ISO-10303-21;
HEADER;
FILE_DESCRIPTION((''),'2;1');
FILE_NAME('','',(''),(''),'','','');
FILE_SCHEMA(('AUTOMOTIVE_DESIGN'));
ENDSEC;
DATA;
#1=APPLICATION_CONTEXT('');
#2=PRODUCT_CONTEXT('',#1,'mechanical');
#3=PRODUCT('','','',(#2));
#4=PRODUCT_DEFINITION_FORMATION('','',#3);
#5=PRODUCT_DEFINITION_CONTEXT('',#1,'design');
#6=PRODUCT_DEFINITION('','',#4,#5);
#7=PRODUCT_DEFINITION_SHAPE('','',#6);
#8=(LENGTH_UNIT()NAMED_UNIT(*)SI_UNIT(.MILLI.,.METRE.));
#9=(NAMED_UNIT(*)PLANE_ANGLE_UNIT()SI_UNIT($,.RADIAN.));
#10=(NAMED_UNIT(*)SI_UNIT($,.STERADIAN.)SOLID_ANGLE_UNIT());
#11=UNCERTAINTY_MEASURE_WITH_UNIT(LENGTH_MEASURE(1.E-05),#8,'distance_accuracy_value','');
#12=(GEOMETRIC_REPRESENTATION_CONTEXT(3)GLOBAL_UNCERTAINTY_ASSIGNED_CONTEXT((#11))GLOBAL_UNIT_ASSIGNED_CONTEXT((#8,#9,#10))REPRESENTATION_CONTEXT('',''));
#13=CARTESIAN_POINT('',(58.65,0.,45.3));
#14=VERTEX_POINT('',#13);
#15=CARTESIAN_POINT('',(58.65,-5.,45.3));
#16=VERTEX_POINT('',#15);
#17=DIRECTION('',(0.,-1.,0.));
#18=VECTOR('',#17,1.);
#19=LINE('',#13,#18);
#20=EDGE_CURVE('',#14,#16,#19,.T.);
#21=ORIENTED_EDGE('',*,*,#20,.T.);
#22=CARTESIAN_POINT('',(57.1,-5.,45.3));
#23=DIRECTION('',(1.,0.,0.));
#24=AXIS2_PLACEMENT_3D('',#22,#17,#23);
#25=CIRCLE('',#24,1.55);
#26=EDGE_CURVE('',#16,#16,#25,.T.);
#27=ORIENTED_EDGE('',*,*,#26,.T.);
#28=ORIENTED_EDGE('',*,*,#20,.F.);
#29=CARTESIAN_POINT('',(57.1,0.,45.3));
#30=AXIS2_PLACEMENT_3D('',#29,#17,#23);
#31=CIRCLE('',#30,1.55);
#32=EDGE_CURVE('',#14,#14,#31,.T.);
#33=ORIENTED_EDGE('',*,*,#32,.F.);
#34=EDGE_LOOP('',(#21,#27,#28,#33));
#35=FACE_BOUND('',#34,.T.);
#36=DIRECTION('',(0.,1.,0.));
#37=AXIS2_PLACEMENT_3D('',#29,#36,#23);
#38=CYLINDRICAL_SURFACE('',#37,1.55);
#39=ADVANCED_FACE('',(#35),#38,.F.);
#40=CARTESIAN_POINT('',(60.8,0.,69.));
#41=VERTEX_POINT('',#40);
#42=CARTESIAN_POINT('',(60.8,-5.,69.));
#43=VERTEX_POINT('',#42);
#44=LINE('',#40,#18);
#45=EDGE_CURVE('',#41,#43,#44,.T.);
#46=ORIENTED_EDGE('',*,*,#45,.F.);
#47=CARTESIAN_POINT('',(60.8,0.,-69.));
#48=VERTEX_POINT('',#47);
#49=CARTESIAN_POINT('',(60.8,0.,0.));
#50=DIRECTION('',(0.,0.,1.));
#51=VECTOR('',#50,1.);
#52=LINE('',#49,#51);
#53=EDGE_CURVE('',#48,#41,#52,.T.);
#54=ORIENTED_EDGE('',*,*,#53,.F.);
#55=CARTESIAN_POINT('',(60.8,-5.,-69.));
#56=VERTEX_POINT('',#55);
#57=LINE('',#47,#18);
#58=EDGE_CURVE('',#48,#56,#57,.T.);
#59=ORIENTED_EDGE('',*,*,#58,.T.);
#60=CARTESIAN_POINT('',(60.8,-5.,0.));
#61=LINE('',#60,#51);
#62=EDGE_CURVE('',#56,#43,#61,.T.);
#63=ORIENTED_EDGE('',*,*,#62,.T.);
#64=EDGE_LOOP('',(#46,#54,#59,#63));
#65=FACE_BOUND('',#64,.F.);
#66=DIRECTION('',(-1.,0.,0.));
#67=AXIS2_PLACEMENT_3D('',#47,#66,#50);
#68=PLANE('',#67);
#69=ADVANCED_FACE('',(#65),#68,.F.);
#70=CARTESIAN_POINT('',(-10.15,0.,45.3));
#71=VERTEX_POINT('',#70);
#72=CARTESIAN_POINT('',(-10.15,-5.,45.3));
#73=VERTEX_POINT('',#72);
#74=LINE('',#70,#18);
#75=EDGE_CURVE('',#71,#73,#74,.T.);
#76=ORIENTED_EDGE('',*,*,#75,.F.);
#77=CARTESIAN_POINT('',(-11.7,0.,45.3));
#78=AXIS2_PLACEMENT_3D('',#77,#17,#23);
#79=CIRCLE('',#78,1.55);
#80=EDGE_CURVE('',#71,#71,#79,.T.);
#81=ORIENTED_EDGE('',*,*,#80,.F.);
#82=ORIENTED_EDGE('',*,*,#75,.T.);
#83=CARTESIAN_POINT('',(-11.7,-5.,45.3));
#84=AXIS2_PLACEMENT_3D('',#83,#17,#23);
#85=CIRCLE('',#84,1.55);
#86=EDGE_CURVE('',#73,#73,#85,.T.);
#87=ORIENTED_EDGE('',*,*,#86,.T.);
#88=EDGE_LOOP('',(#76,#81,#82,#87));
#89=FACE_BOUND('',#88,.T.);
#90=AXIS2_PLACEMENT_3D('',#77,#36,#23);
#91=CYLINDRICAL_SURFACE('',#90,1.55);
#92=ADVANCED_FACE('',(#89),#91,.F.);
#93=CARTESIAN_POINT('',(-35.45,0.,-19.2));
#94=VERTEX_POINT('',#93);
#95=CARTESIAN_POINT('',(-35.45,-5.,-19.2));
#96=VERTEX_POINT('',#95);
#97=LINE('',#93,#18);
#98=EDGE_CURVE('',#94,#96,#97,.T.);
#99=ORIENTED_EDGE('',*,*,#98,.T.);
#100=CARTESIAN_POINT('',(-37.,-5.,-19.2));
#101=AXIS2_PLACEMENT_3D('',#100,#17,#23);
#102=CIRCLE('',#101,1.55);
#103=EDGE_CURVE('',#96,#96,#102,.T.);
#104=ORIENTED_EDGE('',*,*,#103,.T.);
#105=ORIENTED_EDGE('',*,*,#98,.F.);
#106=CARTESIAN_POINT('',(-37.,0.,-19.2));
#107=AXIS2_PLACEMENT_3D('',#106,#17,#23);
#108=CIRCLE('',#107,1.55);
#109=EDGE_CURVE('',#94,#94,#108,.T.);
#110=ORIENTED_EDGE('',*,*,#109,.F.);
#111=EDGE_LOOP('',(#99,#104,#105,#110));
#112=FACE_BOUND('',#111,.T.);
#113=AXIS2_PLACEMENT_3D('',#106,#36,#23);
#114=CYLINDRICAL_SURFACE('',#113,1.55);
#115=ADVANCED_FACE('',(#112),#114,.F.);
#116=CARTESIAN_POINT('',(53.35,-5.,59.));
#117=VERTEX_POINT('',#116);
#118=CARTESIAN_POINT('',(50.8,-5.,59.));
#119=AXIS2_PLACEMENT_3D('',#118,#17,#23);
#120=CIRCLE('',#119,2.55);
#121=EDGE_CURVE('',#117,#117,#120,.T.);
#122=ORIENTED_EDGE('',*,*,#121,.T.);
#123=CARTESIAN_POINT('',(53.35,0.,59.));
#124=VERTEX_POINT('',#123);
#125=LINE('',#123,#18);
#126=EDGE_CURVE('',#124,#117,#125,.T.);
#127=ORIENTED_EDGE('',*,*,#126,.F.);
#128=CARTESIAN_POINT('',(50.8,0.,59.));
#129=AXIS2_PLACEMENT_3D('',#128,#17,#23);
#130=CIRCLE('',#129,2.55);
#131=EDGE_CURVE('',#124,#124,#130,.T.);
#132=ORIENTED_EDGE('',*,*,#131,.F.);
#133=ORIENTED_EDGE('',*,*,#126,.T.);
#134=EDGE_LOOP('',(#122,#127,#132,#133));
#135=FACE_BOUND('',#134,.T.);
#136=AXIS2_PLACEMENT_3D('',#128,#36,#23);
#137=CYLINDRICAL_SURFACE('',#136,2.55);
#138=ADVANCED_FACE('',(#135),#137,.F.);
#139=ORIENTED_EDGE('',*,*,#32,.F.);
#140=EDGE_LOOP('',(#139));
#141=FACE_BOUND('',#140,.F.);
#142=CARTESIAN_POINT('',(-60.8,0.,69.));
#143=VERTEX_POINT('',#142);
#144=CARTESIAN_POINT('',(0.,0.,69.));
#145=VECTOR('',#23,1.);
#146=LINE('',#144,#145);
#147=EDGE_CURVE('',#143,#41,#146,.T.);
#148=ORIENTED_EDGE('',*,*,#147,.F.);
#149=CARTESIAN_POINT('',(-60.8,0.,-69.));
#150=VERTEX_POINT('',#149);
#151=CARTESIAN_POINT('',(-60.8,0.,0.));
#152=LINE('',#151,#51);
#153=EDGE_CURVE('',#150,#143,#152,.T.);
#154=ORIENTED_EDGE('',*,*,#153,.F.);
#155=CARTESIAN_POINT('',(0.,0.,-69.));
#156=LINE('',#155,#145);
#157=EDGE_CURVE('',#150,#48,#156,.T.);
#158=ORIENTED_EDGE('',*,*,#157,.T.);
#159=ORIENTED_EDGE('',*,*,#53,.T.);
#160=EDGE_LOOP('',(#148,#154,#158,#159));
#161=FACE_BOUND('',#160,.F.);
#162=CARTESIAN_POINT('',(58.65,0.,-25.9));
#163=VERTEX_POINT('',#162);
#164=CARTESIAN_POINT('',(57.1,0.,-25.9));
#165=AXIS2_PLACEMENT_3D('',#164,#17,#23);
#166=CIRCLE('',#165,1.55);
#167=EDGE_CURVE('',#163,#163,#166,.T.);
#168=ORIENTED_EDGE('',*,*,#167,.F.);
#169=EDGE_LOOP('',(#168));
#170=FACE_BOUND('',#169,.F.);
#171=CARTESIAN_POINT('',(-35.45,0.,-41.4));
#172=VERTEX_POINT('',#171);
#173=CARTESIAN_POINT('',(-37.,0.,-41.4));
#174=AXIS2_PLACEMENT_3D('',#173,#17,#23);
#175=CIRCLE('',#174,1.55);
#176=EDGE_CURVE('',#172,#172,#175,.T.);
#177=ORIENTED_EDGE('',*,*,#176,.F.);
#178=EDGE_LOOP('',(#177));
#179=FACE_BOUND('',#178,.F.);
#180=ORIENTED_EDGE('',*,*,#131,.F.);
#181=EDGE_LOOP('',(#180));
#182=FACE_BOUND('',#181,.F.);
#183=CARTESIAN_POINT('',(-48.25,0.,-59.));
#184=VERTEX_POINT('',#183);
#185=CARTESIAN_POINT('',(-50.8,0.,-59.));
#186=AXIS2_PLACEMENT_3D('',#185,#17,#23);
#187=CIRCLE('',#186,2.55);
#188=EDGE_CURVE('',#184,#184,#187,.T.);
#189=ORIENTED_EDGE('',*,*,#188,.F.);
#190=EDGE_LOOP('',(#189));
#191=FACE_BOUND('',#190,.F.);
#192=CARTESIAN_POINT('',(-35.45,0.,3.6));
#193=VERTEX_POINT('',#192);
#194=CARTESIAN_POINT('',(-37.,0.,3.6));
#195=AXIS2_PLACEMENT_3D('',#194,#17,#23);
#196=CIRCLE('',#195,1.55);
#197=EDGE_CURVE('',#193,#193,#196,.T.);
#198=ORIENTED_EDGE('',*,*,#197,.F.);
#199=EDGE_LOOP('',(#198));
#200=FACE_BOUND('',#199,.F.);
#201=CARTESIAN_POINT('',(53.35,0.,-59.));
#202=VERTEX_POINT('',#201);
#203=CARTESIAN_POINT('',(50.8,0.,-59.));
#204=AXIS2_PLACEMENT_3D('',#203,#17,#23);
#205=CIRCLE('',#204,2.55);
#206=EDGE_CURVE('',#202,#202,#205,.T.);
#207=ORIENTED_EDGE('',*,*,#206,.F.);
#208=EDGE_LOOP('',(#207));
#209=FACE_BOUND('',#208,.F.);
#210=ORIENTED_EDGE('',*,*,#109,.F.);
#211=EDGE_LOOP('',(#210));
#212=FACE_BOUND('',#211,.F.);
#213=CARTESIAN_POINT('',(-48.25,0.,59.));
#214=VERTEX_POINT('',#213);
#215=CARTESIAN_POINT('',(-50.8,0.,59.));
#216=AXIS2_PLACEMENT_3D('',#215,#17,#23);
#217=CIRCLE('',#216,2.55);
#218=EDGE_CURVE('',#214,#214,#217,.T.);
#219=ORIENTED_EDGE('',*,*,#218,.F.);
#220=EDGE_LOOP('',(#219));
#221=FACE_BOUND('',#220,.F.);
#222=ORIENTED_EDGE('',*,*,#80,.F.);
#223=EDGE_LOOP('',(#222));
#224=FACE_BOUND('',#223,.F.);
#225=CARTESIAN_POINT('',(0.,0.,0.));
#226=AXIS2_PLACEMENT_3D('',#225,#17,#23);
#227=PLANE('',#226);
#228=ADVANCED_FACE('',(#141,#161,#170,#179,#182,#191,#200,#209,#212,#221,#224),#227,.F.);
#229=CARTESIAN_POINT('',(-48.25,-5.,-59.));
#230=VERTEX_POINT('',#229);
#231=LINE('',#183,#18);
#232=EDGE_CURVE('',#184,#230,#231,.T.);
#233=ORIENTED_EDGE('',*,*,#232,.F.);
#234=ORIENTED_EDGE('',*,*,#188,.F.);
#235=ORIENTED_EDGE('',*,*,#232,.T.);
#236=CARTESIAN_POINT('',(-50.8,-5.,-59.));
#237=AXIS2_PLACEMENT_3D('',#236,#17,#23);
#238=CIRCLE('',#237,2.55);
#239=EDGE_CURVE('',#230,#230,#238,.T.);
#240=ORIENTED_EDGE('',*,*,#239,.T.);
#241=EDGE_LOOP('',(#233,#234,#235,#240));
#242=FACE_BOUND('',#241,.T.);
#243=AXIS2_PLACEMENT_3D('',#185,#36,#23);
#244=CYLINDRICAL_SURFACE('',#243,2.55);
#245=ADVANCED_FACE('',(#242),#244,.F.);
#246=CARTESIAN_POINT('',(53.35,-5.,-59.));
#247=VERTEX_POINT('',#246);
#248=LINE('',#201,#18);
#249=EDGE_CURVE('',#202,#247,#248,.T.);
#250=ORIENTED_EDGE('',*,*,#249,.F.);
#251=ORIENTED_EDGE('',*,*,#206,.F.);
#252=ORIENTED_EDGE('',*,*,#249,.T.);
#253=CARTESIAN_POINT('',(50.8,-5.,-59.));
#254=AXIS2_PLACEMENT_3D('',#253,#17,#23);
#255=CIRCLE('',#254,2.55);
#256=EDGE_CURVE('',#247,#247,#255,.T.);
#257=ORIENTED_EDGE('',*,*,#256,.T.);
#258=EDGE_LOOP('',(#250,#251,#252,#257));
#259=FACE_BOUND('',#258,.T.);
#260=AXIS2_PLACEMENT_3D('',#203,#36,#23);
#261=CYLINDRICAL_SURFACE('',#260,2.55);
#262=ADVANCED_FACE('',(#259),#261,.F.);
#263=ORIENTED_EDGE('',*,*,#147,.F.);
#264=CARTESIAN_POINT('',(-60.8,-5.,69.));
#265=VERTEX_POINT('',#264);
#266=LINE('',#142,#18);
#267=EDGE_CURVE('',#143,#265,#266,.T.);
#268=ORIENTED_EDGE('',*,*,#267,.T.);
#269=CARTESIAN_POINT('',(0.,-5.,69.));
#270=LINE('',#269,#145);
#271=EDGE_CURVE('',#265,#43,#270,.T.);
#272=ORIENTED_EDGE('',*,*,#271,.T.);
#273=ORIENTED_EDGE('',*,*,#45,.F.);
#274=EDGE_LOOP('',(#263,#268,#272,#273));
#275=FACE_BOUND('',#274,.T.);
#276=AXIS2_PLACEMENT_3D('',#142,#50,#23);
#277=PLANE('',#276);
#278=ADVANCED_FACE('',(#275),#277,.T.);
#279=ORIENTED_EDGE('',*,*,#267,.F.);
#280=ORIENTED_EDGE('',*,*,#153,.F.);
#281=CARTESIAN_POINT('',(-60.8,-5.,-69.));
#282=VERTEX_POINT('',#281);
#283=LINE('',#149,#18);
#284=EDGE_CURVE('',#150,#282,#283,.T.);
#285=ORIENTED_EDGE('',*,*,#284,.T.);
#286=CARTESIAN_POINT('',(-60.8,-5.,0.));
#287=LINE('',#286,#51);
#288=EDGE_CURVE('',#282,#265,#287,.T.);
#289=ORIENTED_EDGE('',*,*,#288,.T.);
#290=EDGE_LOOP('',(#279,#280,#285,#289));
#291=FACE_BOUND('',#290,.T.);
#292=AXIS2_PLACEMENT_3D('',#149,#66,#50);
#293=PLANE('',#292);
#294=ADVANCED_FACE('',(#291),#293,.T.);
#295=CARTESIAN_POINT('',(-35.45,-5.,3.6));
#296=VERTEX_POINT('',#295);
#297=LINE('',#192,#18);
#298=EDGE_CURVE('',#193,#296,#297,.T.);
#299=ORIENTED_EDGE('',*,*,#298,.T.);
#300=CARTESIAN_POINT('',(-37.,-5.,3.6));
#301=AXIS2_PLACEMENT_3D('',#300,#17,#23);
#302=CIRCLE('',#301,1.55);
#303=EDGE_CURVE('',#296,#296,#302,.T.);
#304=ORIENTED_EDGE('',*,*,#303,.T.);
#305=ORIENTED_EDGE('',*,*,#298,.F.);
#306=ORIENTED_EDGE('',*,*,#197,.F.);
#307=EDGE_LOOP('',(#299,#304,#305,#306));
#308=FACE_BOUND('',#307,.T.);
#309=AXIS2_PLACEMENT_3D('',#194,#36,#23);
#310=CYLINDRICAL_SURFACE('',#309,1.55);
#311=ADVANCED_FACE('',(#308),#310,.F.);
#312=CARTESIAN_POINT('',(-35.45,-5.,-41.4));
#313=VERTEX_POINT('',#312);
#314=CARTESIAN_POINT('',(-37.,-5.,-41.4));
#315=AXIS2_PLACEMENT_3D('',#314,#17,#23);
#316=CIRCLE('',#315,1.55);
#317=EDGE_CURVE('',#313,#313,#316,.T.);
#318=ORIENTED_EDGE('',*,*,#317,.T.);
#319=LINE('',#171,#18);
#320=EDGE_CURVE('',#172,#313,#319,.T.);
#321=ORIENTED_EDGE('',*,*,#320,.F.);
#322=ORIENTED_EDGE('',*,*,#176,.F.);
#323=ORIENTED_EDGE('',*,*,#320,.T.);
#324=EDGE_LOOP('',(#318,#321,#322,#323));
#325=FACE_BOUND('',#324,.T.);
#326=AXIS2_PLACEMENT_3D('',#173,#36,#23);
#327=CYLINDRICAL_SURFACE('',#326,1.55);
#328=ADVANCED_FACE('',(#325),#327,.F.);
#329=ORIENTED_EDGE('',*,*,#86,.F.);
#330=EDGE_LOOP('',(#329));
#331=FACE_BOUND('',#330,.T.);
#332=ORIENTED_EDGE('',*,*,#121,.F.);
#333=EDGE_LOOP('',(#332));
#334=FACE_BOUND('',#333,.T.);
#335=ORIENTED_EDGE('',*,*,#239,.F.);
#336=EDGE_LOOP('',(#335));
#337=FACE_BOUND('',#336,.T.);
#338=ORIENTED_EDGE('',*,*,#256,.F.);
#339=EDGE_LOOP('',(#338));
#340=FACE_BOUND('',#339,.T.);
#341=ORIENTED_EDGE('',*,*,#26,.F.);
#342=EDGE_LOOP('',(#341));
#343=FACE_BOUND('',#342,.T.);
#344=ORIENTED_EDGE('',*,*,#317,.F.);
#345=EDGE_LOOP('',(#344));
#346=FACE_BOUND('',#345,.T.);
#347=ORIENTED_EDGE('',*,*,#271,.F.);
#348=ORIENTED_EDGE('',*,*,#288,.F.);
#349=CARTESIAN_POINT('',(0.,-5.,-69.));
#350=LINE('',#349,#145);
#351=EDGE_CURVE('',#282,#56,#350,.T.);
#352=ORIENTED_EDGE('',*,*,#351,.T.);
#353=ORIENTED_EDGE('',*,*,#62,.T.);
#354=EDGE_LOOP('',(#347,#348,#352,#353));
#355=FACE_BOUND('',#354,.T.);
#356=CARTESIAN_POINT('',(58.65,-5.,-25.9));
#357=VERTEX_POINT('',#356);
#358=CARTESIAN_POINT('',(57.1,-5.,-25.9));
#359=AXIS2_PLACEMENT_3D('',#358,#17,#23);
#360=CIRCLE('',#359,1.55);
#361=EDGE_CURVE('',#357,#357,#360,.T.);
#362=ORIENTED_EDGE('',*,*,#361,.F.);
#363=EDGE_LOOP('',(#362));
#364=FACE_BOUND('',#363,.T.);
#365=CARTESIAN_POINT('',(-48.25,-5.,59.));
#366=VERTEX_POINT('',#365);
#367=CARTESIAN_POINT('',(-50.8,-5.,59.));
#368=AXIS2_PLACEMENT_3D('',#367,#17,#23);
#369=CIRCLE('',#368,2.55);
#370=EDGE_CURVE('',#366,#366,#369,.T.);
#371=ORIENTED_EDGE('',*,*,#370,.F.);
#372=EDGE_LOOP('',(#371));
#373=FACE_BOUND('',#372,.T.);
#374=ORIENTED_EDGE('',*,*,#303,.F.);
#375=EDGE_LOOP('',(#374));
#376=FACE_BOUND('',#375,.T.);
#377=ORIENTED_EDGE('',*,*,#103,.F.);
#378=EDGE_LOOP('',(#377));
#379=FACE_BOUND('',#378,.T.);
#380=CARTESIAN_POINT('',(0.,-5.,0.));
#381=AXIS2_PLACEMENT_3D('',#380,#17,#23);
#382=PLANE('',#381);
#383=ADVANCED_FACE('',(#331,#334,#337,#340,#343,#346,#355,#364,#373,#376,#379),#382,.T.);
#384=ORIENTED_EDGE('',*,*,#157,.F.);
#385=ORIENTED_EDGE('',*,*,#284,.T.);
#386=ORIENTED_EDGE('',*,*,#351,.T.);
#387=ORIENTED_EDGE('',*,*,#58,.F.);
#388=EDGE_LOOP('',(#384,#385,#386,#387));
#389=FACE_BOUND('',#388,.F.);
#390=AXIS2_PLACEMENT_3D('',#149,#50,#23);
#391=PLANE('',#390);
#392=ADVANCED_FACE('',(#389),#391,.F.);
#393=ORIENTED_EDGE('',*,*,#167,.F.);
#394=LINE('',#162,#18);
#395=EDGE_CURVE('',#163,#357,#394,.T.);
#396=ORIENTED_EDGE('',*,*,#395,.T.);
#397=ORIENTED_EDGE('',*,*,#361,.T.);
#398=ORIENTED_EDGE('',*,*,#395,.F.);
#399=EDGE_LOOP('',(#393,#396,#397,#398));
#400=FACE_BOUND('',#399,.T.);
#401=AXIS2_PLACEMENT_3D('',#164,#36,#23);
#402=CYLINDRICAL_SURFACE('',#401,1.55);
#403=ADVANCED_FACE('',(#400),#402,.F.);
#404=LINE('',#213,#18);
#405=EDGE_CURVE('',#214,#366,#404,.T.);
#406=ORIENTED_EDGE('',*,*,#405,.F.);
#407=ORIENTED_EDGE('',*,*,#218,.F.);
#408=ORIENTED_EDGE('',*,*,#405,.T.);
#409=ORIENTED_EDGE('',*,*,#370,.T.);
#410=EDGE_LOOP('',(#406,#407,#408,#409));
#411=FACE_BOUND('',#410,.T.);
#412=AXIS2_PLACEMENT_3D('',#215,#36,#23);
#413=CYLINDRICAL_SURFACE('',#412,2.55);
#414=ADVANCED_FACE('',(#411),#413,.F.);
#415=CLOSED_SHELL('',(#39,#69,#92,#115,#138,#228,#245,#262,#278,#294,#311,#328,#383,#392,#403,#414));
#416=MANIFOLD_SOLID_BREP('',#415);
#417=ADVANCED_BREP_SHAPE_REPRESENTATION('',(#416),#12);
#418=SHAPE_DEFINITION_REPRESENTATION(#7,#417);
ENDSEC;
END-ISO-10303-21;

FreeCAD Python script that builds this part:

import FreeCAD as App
import Part
import Sketcher
Q = App.Units.Quantity

doc = App.newDocument("Part")
body = doc.addObject("PartDesign::Body", "Body")

sketch1 = body.newObject("Sketcher::SketchObject", "Sketch")
sketch1.AttachmentSupport = (doc.getObject("XZ_Plane"), [""])
sketch1.MapMode = "FlatFace"
sketch1.addGeometry([
    Part.LineSegment(App.Vector(-60.8, 69, 0), App.Vector(-60.8, -69, 0)),
    Part.LineSegment(App.Vector(-60.8, -69, 0), App.Vector(60.8, -69, 0)),
    Part.LineSegment(App.Vector(60.8, -69, 0), App.Vector(60.8, 69, 0)),
    Part.LineSegment(App.Vector(60.8, 69, 0), App.Vector(-60.8, 69, 0)),
    Part.Circle(App.Vector(-50.8, -59, 0), App.Vector(0, 0, 1), 2.55),
    Part.Circle(App.Vector(-37, -41.4, 0), App.Vector(0, 0, 1), 1.55),
    Part.Circle(App.Vector(-37, -19.2, 0), App.Vector(0, 0, 1), 1.55),
    Part.Circle(App.Vector(50.8, -59, 0), App.Vector(0, 0, 1), 2.55),
    Part.Circle(App.Vector(57.1, -25.9, 0), App.Vector(0, 0, 1), 1.55),
    Part.Circle(App.Vector(-37, 3.6, 0), App.Vector(0, 0, 1), 1.55),
    Part.Circle(App.Vector(-50.8, 59, 0), App.Vector(0, 0, 1), 2.55),
    Part.Circle(App.Vector(-11.7, 45.3, 0), App.Vector(0, 0, 1), 1.55),
    Part.Circle(App.Vector(57.1, 45.3, 0), App.Vector(0, 0, 1), 1.55),
    Part.Circle(App.Vector(50.8, 59, 0), App.Vector(0, 0, 1), 2.55),
], False)
sketch1.addConstraint([
    Sketcher.Constraint("Coincident", 0, 2, 1, 1),
    Sketcher.Constraint("Coincident", 1, 2, 2, 1),
    Sketcher.Constraint("Coincident", 2, 2, 3, 1),
    Sketcher.Constraint("Coincident", 3, 2, 0, 1),
    Sketcher.Constraint("Vertical", 0),
    Sketcher.Constraint("Horizontal", 1),
    Sketcher.Constraint("Vertical", 2),
    Sketcher.Constraint("Horizontal", 3),
    Sketcher.Constraint("Equal", 5, 6),
    Sketcher.Constraint("Equal", 4, 7),
    Sketcher.Constraint("Equal", 6, 8),
    Sketcher.Constraint("Equal", 8, 9),
    Sketcher.Constraint("Equal", 7, 10),
    Sketcher.Constraint("Equal", 9, 11),
    Sketcher.Constraint("Equal", 11, 12),
    Sketcher.Constraint("Equal", 10, 13),
    Sketcher.Constraint("Symmetric", 7, 3, 10, 3, -1, 1),
    Sketcher.Constraint("Symmetric", 4, 3, 13, 3, -1, 1),
    Sketcher.Constraint("Symmetric", 0, 2, 2, 2, -1, 1),
    Sketcher.Constraint("Symmetric", 4, 3, 7, 3, -2),
    Sketcher.Constraint("Horizontal", 11, 3, 12, 3),
    Sketcher.Constraint("Vertical", 5, 3, 6, 3),
    Sketcher.Constraint("Vertical", 6, 3, 9, 3),
    Sketcher.Constraint("Vertical", 8, 3, 12, 3),
    Sketcher.Constraint("Diameter", 4, Q("5.1 mm")),
    Sketcher.Constraint("Diameter", 5, Q("3.1 mm")),
    Sketcher.Constraint("DistanceY", 0, 2, 0, 1, Q("138 mm")),
    Sketcher.Constraint("DistanceX", 1, 1, 1, 2, Q("121.6 mm")),
    Sketcher.Constraint("DistanceY", 4, 3, -1, 1, Q("59 mm")),
    Sketcher.Constraint("DistanceX", 5, 3, -1, 1, Q("37 mm")),
    Sketcher.Constraint("DistanceY", 5, 3, 9, 3, Q("45 mm")),
    Sketcher.Constraint("DistanceX", 0, 2, 4, 3, Q("10 mm")),
    Sketcher.Constraint("DistanceY", 5, 3, -1, 1, Q("41.4 mm")),
    Sketcher.Constraint("DistanceY", 6, 3, -1, 1, Q("19.2 mm")),
    Sketcher.Constraint("DistanceX", -1, 1, 8, 3, Q("57.1 mm")),
    Sketcher.Constraint("DistanceY", 8, 3, -1, 1, Q("25.9 mm")),
    Sketcher.Constraint("DistanceX", 11, 3, -1, 1, Q("11.7 mm")),
    Sketcher.Constraint("DistanceY", -1, 1, 11, 3, Q("45.3 mm")),
])
pad1 = body.newObject("PartDesign::Pad", "Pad")
pad1.Profile = sketch1
pad1.Length = 5

doc.recompute()
